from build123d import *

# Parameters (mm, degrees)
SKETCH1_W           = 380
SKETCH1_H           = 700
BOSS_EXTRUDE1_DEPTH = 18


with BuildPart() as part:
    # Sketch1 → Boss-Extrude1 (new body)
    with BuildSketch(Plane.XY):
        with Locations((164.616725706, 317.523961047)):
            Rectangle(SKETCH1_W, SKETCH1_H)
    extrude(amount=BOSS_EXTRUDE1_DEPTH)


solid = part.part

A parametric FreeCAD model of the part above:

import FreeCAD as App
import Part
import Sketcher
Q = App.Units.Quantity

doc = App.newDocument("Part")
body = doc.addObject("PartDesign::Body", "Body")

# Sketch on XY plane
sketch1 = doc.addObject("Sketcher::SketchObject", "Sketch")
body.addObject(sketch1)
sketch1.AttachmentSupport = (doc.XY_Plane, [""])
sketch1.MapMode = "FlatFace"
sketch1.addGeometry(Part.LineSegment(App.Vector(-25, 668, 0), App.Vector(-25, -32, 0)), False)
sketch1.addGeometry(Part.LineSegment(App.Vector(-25, -32, 0), App.Vector(355, -32, 0)), False)
sketch1.addGeometry(Part.LineSegment(App.Vector(355, -32, 0), App.Vector(355, 668, 0)), False)
sketch1.addGeometry(Part.LineSegment(App.Vector(355, 668, 0), App.Vector(-25, 668, 0)), False)
sketch1.addConstraint(Sketcher.Constraint("Coincident", 0, 2, 1, 1))
sketch1.addConstraint(Sketcher.Constraint("Coincident", 1, 2, 2, 1))
sketch1.addConstraint(Sketcher.Constraint("Coincident", 2, 2, 3, 1))
sketch1.addConstraint(Sketcher.Constraint("Coincident", 3, 2, 0, 1))
sketch1.addConstraint(Sketcher.Constraint("Vertical", 0))
sketch1.addConstraint(Sketcher.Constraint("Horizontal", 1))
sketch1.addConstraint(Sketcher.Constraint("Vertical", 2))
sketch1.addConstraint(Sketcher.Constraint("Horizontal", 3))
sketch1.addConstraint(Sketcher.Constraint("DistanceX", 1, 1, 1, 2, Q("380 mm")))
sketch1.addConstraint(Sketcher.Constraint("DistanceY", 0, 2, 0, 1, Q("700 mm")))
sketch1.addConstraint(Sketcher.Constraint("DistanceY", 0, 2, -1, 1, Q("32.476039 mm")))
sketch1.addConstraint(Sketcher.Constraint("DistanceX", 0, 2, -1, 1, Q("25.383274 mm")))
pad1 = doc.addObject("PartDesign::Pad", "Pad")
body.addObject(pad1)
pad1.Profile = sketch1
pad1.Length = 18

doc.recompute()
